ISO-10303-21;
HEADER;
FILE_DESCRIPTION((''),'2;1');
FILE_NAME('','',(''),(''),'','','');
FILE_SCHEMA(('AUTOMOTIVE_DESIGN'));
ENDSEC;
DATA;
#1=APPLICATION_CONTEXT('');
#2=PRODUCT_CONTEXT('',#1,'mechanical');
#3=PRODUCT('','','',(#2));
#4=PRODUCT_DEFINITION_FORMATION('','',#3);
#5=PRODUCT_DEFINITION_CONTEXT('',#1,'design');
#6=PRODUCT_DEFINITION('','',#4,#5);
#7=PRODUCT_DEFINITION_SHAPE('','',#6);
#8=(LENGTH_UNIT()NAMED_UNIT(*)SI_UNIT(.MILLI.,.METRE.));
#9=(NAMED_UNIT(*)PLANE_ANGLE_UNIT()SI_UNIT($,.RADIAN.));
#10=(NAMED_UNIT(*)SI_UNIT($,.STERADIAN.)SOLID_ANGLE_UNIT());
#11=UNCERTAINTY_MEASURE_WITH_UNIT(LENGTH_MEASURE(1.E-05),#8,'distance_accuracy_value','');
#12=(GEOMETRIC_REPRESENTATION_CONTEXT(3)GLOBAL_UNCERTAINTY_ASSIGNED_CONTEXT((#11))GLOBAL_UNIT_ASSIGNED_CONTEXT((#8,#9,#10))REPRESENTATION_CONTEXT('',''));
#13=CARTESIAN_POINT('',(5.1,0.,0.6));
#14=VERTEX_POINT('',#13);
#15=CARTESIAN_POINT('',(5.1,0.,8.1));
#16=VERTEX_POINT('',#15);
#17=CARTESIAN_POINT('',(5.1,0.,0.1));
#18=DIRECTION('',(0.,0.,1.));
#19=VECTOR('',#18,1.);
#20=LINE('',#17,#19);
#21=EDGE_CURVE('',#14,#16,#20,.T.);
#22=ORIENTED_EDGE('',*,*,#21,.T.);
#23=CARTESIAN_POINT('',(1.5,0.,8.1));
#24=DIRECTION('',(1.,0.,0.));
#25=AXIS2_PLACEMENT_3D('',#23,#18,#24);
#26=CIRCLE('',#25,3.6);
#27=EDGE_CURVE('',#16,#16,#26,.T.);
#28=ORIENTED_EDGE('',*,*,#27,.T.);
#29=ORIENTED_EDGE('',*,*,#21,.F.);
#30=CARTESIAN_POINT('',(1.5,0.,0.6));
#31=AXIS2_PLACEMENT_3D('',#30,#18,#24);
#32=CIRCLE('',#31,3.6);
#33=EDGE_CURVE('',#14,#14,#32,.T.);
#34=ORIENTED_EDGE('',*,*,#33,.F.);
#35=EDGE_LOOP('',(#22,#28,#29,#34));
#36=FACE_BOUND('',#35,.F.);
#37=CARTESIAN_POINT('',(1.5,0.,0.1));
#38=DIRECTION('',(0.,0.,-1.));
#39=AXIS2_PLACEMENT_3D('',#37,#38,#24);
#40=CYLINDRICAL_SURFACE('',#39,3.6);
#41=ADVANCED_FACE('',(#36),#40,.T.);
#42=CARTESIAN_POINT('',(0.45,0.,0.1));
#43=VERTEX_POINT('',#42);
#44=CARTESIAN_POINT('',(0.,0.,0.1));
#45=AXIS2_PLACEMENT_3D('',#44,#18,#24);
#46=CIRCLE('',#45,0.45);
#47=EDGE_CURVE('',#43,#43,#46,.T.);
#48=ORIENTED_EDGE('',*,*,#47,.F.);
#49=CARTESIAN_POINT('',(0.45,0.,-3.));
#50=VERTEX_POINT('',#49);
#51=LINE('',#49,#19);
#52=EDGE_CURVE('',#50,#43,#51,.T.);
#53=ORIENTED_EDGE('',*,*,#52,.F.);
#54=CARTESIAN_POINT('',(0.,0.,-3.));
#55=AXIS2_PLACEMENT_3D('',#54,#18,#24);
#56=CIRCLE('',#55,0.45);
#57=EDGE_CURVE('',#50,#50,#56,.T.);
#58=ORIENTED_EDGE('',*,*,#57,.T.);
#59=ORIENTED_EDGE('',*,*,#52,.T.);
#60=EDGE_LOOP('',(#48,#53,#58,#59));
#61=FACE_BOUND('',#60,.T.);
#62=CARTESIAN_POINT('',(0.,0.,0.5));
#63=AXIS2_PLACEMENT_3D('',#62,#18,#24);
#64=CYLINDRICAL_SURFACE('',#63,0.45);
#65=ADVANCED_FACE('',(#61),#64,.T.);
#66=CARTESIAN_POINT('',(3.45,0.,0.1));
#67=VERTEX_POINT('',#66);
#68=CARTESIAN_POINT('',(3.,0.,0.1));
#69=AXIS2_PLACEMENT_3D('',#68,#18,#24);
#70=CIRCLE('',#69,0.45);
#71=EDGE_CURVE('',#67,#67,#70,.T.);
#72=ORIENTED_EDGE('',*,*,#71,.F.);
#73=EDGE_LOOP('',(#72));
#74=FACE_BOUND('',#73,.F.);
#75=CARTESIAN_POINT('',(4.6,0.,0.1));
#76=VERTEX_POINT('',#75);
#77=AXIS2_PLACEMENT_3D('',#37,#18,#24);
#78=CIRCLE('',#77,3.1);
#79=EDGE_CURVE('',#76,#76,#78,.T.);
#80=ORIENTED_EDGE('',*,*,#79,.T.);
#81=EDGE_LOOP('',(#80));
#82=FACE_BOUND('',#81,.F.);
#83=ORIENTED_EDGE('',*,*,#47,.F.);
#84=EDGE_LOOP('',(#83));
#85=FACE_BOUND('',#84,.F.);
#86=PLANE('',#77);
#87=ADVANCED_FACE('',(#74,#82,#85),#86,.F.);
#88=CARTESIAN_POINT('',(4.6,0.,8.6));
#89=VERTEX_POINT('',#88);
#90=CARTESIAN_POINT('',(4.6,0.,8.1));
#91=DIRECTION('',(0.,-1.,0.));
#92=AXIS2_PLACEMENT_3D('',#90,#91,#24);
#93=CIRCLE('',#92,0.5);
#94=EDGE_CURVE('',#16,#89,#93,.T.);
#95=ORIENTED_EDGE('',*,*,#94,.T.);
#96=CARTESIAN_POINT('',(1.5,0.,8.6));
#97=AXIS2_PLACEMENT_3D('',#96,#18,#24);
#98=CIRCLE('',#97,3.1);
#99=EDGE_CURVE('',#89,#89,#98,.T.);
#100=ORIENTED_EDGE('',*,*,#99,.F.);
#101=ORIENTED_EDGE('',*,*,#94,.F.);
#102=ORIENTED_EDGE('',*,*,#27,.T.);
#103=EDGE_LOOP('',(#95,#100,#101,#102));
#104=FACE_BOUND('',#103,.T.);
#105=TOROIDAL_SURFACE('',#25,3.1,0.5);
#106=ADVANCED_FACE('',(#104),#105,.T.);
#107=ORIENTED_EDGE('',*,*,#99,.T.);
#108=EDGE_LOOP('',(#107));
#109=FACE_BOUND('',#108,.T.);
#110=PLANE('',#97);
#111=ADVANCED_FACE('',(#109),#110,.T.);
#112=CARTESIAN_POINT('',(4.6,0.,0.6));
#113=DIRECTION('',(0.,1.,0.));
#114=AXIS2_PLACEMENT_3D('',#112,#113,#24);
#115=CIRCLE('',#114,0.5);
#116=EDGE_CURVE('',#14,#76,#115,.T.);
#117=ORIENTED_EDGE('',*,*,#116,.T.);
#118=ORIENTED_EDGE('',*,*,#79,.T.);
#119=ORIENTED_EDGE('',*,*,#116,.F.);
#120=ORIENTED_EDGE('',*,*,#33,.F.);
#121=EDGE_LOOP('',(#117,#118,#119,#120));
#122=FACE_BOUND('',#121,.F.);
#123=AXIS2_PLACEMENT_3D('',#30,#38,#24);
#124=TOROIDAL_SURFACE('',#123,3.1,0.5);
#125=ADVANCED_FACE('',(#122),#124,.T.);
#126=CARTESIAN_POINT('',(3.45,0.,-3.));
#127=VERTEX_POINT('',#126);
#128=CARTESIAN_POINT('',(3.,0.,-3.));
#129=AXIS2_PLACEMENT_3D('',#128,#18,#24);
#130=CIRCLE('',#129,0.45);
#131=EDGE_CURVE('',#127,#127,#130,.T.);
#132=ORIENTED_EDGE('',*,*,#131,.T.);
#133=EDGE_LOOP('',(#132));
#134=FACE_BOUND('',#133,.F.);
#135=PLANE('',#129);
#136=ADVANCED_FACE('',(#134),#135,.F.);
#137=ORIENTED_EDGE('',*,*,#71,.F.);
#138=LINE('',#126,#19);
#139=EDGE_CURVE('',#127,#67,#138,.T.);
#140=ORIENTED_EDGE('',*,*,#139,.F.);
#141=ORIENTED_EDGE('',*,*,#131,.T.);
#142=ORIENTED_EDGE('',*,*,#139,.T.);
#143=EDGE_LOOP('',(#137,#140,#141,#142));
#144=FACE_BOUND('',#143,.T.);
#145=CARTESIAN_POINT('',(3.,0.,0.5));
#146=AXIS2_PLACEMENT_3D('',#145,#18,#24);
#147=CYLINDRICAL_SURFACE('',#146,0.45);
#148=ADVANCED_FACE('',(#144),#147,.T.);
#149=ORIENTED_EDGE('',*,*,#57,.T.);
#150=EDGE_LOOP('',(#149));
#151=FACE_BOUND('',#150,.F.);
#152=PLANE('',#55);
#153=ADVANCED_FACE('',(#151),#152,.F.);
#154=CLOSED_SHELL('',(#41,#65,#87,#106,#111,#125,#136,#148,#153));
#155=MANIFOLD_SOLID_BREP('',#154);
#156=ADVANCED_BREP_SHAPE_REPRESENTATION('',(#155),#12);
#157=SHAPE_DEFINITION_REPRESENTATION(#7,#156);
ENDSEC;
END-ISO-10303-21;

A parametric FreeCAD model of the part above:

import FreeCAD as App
import Part
import Sketcher

V = App.Vector


def edges_at(feature, points):
    """Names of the edges that pass closest to the given points."""
    edges = feature.Shape.Edges
    near = lambda p: min(range(len(edges)), key=lambda i: edges[i].distToShape(Part.Vertex(*p))[0])
    return sorted({f"Edge{near(p) + 1}" for p in points})

doc = App.newDocument("Part")
params = doc.addObject("Spreadsheet::Sheet", "Params")
for row, (alias, value) in enumerate([
    ("sketch1_diameter", "7.2 mm"),
    ("pad1_length", "8.5 mm"),
    ("fillet_radius", "0.5 mm"),
    ("sketch2_diameter", "0.9 mm"),
    ("pad2_length", "4.25 mm"),
    ("pad2_length2", "3.5 mm"),
], start=1):
    params.set(f"A{row}", alias)
    params.set(f"B{row}", "=" + value)
    params.setAlias(f"B{row}", alias)

body = doc.addObject("PartDesign::Body", "Body")

# Sketch on XY plane
sketch1 = doc.addObject("Sketcher::SketchObject", "Sketch")
body.addObject(sketch1)
sketch1.AttachmentSupport = (doc.XY_Plane, [""])
sketch1.MapMode = "FlatFace"
sketch1.AttachmentOffset = App.Placement(V(0, 0, 0.1), App.Rotation())
sketch1.addGeometry(Part.Circle(V(1.5, 0, 0), V(0, 0, 1), 3.6), False)
sketch1.addConstraint(Sketcher.Constraint("PointOnObject", 0, 3, -1))
sketch1.addConstraint(Sketcher.Constraint("Diameter", 0, 7.2))
sketch1.addConstraint(Sketcher.Constraint("DistanceX", -1, 1, 0, 3, 1.5))
sketch1.setExpression("Constraints[1]", "Params.sketch1_diameter")
pad1 = doc.addObject("PartDesign::Pad", "Pad")
body.addObject(pad1)
pad1.Profile = sketch1
pad1.setExpression("Length", "Params.pad1_length")
doc.recompute()

fillet = doc.addObject("PartDesign::Fillet", "Fillet")
body.addObject(fillet)
fillet.Base = (pad1, edges_at(pad1, [(-2.1, 0, 0.1), (-2.1, 0, 8.6)]))
fillet.setExpression("Radius", "Params.fillet_radius")
body2 = doc.addObject("PartDesign::Body", "Body001")
body2.AllowCompound = True

# Sketch on XY plane
sketch2 = doc.addObject("Sketcher::SketchObject", "Sketch001")
body2.addObject(sketch2)
sketch2.AttachmentSupport = (doc.getObject("XY_Plane001"), [""])
sketch2.MapMode = "FlatFace"
sketch2.AttachmentOffset = App.Placement(V(0, 0, 0.5), App.Rotation())
sketch2.addGeometry(Part.Circle(V(0, 0, 0), V(0, 0, 1), 0.45), False)
sketch2.addGeometry(Part.Circle(V(3, 0, 0), V(0, 0, 1), 0.45), False)
sketch2.addConstraint(Sketcher.Constraint("Coincident", 0, 3, -1, 1))
sketch2.addConstraint(Sketcher.Constraint("Equal", 0, 1))
sketch2.addConstraint(Sketcher.Constraint("PointOnObject", 1, 3, -1))
sketch2.addConstraint(Sketcher.Constraint("Diameter", 0, 0.9))
sketch2.addConstraint(Sketcher.Constraint("DistanceX", -1, 1, 1, 3, 3.0))
sketch2.setExpression("Constraints[3]", "Params.sketch2_diameter")
pad2 = doc.addObject("PartDesign::Pad", "Pad001")
body2.addObject(pad2)
pad2.Profile = sketch2
pad2.Type = "TwoLengths"
pad2.setExpression("Length", "Params.pad2_length")
pad2.setExpression("Length2", "Params.pad2_length2")
doc.recompute()

boolean = doc.addObject("PartDesign::Boolean", "Boolean")
body2.addObject(boolean)
boolean.Type = "Fuse"
boolean.addObjects([body])

doc.recompute()
